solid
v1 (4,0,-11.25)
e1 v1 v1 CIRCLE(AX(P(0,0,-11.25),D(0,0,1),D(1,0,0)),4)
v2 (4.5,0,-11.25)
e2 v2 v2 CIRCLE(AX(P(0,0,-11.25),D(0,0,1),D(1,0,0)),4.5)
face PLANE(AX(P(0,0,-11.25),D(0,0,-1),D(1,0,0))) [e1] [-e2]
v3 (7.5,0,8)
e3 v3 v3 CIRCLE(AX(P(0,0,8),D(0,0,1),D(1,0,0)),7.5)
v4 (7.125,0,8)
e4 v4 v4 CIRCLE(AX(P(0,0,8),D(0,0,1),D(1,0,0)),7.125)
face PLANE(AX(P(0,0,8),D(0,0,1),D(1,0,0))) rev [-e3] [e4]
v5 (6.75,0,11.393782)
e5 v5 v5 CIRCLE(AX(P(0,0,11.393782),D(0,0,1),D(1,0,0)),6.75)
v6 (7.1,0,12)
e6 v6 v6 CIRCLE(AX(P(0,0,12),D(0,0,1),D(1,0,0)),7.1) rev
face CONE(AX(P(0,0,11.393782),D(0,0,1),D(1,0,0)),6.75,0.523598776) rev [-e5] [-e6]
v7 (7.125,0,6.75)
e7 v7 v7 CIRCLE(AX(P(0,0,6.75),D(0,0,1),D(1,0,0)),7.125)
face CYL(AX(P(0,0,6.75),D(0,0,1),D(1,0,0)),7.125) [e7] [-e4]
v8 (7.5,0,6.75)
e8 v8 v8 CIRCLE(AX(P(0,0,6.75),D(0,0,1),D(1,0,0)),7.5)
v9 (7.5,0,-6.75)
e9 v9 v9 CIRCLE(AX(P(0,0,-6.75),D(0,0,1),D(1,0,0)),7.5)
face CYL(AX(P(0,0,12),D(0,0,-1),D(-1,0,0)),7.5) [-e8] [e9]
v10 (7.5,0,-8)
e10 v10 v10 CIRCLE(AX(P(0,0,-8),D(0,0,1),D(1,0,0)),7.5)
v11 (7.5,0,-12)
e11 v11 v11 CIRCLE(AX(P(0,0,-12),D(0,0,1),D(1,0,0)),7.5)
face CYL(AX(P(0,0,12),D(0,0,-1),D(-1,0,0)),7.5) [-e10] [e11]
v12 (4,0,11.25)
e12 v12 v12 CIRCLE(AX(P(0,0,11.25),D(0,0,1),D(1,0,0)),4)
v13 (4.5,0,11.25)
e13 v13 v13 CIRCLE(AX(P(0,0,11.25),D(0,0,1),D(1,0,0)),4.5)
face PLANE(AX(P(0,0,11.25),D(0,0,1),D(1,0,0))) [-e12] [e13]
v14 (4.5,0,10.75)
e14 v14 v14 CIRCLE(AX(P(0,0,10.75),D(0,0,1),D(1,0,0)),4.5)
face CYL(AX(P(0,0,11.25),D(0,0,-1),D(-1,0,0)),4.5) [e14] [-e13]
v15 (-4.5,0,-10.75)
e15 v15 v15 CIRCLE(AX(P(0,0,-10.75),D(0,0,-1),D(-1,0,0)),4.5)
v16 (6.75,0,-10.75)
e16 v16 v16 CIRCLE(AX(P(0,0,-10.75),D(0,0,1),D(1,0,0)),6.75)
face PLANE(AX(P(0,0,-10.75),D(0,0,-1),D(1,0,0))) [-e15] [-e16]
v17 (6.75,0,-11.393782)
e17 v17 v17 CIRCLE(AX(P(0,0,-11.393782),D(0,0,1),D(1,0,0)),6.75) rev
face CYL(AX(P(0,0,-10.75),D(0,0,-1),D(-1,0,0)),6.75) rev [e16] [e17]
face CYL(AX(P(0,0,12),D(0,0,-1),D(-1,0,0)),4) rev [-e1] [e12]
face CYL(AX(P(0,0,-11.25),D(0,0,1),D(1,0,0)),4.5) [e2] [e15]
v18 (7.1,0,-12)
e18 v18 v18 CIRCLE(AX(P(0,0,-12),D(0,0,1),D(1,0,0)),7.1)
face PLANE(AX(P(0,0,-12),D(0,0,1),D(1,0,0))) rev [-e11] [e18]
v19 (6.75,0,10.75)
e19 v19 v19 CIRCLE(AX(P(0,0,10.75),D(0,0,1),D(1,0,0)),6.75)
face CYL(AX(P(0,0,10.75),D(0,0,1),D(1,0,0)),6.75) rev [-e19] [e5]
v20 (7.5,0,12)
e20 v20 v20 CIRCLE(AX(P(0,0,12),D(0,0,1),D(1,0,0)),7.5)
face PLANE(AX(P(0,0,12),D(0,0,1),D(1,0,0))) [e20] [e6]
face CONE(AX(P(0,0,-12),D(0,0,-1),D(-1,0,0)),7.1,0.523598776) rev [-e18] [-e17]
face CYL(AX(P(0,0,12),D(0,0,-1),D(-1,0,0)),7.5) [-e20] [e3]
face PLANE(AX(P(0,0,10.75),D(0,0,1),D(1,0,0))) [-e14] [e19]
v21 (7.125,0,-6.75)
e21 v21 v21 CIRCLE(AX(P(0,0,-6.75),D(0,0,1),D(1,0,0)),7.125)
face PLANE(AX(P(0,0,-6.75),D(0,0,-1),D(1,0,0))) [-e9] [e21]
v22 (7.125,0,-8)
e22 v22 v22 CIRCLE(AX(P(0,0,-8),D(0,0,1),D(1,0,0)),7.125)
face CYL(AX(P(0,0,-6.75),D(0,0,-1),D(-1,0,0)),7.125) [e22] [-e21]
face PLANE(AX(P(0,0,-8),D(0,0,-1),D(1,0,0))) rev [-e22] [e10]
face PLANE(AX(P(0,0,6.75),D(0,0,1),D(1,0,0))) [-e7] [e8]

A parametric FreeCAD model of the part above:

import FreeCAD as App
import Part
import Sketcher

V = App.Vector


def edges_at(feature, points):
    """Names of the edges that pass closest to the given points."""
    edges = feature.Shape.Edges
    near = lambda p: min(range(len(edges)), key=lambda i: edges[i].distToShape(Part.Vertex(*p))[0])
    return sorted({f"Edge{near(p) + 1}" for p in points})

doc = App.newDocument("Part")
body = doc.addObject("PartDesign::Body", "Body")

# Sketch on XY plane
sketch1 = body.newObject("Sketcher::SketchObject", "Sketch")
sketch1.AttachmentSupport = (doc.getObject("XY_Plane"), [""])
sketch1.MapMode = "FlatFace"
sketch1.addGeometry([
    Part.Circle(V(0, 0, 0), V(0, 0, 1), 7.5),
    Part.Circle(V(0, 0, 0), V(0, 0, 1), 4),
], False)
sketch1.addConstraint([
    Sketcher.Constraint("Coincident", 0, 3, -1, 1),
    Sketcher.Constraint("Coincident", 1, 3, -1, 1),
    Sketcher.Constraint("Diameter", 0, 15.0),
    Sketcher.Constraint("Diameter", 1, 8.0),
])
pad1 = body.newObject("PartDesign::Pad", "Pad")
pad1.Profile = sketch1
pad1.Length = 24
pad1.Midplane = True

# Sketch on XY plane
sketch2 = body.newObject("Sketcher::SketchObject", "Sketch001")
sketch2.AttachmentSupport = (doc.getObject("XY_Plane"), [""])
sketch2.MapMode = "FlatFace"
sketch2.AttachmentOffset = App.Placement(V(0, 0, 12), App.Rotation())
sketch2.addGeometry(Part.Circle(V(0, 0, 0), V(0, 0, 1), 7), False)
sketch2.addConstraint([
    Sketcher.Constraint("Coincident", 0, 3, -1, 1),
    Sketcher.Constraint("Diameter", 0, 13.5),
])
pocket1 = body.newObject("PartDesign::Pocket", "Pocket")
pocket1.Profile = sketch2
pocket1.Length = 1.25

# Sketch on XY plane
sketch3 = body.newObject("Sketcher::SketchObject", "Sketch002")
sketch3.AttachmentSupport = (doc.getObject("XY_Plane"), [""])
sketch3.MapMode = "FlatFace"
sketch3.AttachmentOffset = App.Placement(V(0, 0, 10.75), App.Rotation())
sketch3.addGeometry([
    Part.Circle(V(0, 0, 0), V(0, 0, 1), 4.5),
    Part.Circle(V(0, 0, 0), V(0, 0, 1), 4),
], False)
sketch3.addConstraint([
    Sketcher.Constraint("Coincident", 0, 3, -1, 1),
    Sketcher.Constraint("Coincident", 1, 3, -1, 1),
    Sketcher.Constraint("Diameter", 0, 9.0),
    Sketcher.Constraint("Diameter", 1, 8.0),
])
pad2 = body.newObject("PartDesign::Pad", "Pad001")
pad2.Profile = sketch3
pad2.Length = 0.5
doc.recompute()

chamfer = body.newObject("PartDesign::Chamfer", "Chamfer")
chamfer.Base = (pad2, edges_at(pad2, [(-6.75, 0, 12)]))
chamfer.ChamferType = "Two distances"
chamfer.Size = 0.35
chamfer.Size2 = 0.606218

# Sketch on XY plane
sketch4 = body.newObject("Sketcher::SketchObject", "Sketch003")
sketch4.AttachmentSupport = (doc.getObject("XY_Plane"), [""])
sketch4.MapMode = "FlatFace"
sketch4.AttachmentOffset = App.Placement(V(0, 0, 8), App.Rotation())
sketch4.addGeometry([
    Part.Circle(V(0, 0, 0), V(0, 0, 1), 8),
    Part.Circle(V(0, 0, 0), V(0, 0, 1), 7),
], False)
sketch4.addConstraint([
    Sketcher.Constraint("Coincident", 0, 3, -1, 1),
    Sketcher.Constraint("Coincident", 1, 3, -1, 1),
    Sketcher.Constraint("Diameter", 0, 15.0),
    Sketcher.Constraint("Diameter", 1, 14.25),
])
pocket2 = body.newObject("PartDesign::Pocket", "Pocket001")
pocket2.Profile = sketch4
pocket2.Length = 1.25
doc.recompute()

mirrored = body.newObject("PartDesign::Mirrored", "Mirrored")
mirrored.Originals = [pocket1, pad2, pocket2]
mirrored.MirrorPlane = (doc.getObject("XY_Plane"), [""])
body.Tip = mirrored
doc.recompute()

chamfer2 = body.newObject("PartDesign::Chamfer", "Chamfer001")
chamfer2.Base = (mirrored, edges_at(mirrored, [(-6.75, 0, -12)]))
chamfer2.ChamferType = "Two distances"
chamfer2.Size = 0.35
chamfer2.Size2 = 0.606218

doc.recompute()
